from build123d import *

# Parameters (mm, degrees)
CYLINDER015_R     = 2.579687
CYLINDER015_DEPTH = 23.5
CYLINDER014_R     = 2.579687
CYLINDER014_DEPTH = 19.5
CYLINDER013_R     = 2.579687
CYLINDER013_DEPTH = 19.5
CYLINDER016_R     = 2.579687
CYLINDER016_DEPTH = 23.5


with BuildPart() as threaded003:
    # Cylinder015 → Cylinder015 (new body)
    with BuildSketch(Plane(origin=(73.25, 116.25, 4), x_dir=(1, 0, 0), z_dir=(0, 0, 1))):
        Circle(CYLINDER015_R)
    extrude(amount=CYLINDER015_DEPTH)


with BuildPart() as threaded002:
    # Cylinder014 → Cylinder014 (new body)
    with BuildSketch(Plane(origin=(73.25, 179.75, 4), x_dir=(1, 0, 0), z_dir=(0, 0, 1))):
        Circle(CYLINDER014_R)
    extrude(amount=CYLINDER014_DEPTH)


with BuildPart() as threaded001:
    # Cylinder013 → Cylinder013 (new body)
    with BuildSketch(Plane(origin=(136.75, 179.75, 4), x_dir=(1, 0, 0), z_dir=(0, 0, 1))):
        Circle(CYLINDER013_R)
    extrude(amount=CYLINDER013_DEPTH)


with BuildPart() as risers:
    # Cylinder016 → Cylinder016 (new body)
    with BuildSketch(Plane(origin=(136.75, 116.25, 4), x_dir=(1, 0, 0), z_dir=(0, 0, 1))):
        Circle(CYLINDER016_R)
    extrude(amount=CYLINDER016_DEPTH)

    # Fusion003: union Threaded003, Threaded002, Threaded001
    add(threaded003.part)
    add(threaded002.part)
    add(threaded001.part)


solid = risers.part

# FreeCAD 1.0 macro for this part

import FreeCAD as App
import Part
import Sketcher

V = App.Vector

doc = App.newDocument("Part")
body = doc.addObject("PartDesign::Body", "Body")

sketch1 = body.newObject("Sketcher::SketchObject", "Sketch")
sketch1.AttachmentSupport = (doc.getObject("XY_Plane"), [""])
sketch1.MapMode = "FlatFace"
sketch1.AttachmentOffset = App.Placement(V(0, 0, 4), App.Rotation())
sketch1.addGeometry(Part.Circle(V(73.2, 116.2, 0), V(0, 0, 1), 2.6), False)
sketch1.addConstraint(Sketcher.Constraint("DistanceX", -1, 1, 0, 3, 73.25))
sketch1.addConstraint(Sketcher.Constraint("DistanceY", -1, 1, 0, 3, 116.25))
sketch1.addConstraint(Sketcher.Constraint("Diameter", 0, 5.159374))
pad1 = body.newObject("PartDesign::Pad", "Pad")
pad1.Profile = sketch1
pad1.Length = 23.5
body2 = doc.addObject("PartDesign::Body", "Body001")

sketch2 = body2.newObject("Sketcher::SketchObject", "Sketch001")
sketch2.AttachmentSupport = (doc.getObject("XY_Plane001"), [""])
sketch2.MapMode = "FlatFace"
sketch2.AttachmentOffset = App.Placement(V(0, 0, 4), App.Rotation())
sketch2.addGeometry(Part.Circle(V(73.2, 179.8, 0), V(0, 0, 1), 2.6), False)
sketch2.addConstraint(Sketcher.Constraint("DistanceX", -1, 1, 0, 3, 73.25))
sketch2.addConstraint(Sketcher.Constraint("DistanceY", -1, 1, 0, 3, 179.75))
sketch2.addConstraint(Sketcher.Constraint("Diameter", 0, 5.159374))
pad2 = body2.newObject("PartDesign::Pad", "Pad001")
pad2.Profile = sketch2
pad2.Length = 19.5
body3 = doc.addObject("PartDesign::Body", "Body002")

sketch3 = body3.newObject("Sketcher::SketchObject", "Sketch002")
sketch3.AttachmentSupport = (doc.getObject("XY_Plane002"), [""])
sketch3.MapMode = "FlatFace"
sketch3.AttachmentOffset = App.Placement(V(0, 0, 4), App.Rotation())
sketch3.addGeometry(Part.Circle(V(136.8, 179.8, 0), V(0, 0, 1), 2.6), False)
sketch3.addConstraint(Sketcher.Constraint("DistanceX", -1, 1, 0, 3, 136.75))
sketch3.addConstraint(Sketcher.Constraint("DistanceY", -1, 1, 0, 3, 179.75))
sketch3.addConstraint(Sketcher.Constraint("Diameter", 0, 5.159374))
pad3 = body3.newObject("PartDesign::Pad", "Pad002")
pad3.Profile = sketch3
pad3.Length = 19.5
body4 = doc.addObject("PartDesign::Body", "Body003")
body4.AllowCompound = True

sketch4 = body4.newObject("Sketcher::SketchObject", "Sketch003")
sketch4.AttachmentSupport = (doc.getObject("XY_Plane003"), [""])
sketch4.MapMode = "FlatFace"
sketch4.AttachmentOffset = App.Placement(V(0, 0, 4), App.Rotation())
sketch4.addGeometry(Part.Circle(V(136.8, 116.2, 0), V(0, 0, 1), 2.6), False)
sketch4.addConstraint(Sketcher.Constraint("DistanceX", -1, 1, 0, 3, 136.75))
sketch4.addConstraint(Sketcher.Constraint("DistanceY", -1, 1, 0, 3, 116.25))
sketch4.addConstraint(Sketcher.Constraint("Diameter", 0, 5.159374))
pad4 = body4.newObject("PartDesign::Pad", "Pad003")
pad4.Profile = sketch4
pad4.Length = 23.5
doc.recompute()

boolean = body4.newObject("PartDesign::Boolean", "Boolean")
boolean.Type = "Fuse"
boolean.addObjects([body])
doc.recompute()

boolean2 = body4.newObject("PartDesign::Boolean", "Boolean001")
boolean2.Type = "Fuse"
boolean2.addObjects([body2])
doc.recompute()

boolean3 = body4.newObject("PartDesign::Boolean", "Boolean002")
boolean3.Type = "Fuse"
boolean3.addObjects([body3])

doc.recompute()
